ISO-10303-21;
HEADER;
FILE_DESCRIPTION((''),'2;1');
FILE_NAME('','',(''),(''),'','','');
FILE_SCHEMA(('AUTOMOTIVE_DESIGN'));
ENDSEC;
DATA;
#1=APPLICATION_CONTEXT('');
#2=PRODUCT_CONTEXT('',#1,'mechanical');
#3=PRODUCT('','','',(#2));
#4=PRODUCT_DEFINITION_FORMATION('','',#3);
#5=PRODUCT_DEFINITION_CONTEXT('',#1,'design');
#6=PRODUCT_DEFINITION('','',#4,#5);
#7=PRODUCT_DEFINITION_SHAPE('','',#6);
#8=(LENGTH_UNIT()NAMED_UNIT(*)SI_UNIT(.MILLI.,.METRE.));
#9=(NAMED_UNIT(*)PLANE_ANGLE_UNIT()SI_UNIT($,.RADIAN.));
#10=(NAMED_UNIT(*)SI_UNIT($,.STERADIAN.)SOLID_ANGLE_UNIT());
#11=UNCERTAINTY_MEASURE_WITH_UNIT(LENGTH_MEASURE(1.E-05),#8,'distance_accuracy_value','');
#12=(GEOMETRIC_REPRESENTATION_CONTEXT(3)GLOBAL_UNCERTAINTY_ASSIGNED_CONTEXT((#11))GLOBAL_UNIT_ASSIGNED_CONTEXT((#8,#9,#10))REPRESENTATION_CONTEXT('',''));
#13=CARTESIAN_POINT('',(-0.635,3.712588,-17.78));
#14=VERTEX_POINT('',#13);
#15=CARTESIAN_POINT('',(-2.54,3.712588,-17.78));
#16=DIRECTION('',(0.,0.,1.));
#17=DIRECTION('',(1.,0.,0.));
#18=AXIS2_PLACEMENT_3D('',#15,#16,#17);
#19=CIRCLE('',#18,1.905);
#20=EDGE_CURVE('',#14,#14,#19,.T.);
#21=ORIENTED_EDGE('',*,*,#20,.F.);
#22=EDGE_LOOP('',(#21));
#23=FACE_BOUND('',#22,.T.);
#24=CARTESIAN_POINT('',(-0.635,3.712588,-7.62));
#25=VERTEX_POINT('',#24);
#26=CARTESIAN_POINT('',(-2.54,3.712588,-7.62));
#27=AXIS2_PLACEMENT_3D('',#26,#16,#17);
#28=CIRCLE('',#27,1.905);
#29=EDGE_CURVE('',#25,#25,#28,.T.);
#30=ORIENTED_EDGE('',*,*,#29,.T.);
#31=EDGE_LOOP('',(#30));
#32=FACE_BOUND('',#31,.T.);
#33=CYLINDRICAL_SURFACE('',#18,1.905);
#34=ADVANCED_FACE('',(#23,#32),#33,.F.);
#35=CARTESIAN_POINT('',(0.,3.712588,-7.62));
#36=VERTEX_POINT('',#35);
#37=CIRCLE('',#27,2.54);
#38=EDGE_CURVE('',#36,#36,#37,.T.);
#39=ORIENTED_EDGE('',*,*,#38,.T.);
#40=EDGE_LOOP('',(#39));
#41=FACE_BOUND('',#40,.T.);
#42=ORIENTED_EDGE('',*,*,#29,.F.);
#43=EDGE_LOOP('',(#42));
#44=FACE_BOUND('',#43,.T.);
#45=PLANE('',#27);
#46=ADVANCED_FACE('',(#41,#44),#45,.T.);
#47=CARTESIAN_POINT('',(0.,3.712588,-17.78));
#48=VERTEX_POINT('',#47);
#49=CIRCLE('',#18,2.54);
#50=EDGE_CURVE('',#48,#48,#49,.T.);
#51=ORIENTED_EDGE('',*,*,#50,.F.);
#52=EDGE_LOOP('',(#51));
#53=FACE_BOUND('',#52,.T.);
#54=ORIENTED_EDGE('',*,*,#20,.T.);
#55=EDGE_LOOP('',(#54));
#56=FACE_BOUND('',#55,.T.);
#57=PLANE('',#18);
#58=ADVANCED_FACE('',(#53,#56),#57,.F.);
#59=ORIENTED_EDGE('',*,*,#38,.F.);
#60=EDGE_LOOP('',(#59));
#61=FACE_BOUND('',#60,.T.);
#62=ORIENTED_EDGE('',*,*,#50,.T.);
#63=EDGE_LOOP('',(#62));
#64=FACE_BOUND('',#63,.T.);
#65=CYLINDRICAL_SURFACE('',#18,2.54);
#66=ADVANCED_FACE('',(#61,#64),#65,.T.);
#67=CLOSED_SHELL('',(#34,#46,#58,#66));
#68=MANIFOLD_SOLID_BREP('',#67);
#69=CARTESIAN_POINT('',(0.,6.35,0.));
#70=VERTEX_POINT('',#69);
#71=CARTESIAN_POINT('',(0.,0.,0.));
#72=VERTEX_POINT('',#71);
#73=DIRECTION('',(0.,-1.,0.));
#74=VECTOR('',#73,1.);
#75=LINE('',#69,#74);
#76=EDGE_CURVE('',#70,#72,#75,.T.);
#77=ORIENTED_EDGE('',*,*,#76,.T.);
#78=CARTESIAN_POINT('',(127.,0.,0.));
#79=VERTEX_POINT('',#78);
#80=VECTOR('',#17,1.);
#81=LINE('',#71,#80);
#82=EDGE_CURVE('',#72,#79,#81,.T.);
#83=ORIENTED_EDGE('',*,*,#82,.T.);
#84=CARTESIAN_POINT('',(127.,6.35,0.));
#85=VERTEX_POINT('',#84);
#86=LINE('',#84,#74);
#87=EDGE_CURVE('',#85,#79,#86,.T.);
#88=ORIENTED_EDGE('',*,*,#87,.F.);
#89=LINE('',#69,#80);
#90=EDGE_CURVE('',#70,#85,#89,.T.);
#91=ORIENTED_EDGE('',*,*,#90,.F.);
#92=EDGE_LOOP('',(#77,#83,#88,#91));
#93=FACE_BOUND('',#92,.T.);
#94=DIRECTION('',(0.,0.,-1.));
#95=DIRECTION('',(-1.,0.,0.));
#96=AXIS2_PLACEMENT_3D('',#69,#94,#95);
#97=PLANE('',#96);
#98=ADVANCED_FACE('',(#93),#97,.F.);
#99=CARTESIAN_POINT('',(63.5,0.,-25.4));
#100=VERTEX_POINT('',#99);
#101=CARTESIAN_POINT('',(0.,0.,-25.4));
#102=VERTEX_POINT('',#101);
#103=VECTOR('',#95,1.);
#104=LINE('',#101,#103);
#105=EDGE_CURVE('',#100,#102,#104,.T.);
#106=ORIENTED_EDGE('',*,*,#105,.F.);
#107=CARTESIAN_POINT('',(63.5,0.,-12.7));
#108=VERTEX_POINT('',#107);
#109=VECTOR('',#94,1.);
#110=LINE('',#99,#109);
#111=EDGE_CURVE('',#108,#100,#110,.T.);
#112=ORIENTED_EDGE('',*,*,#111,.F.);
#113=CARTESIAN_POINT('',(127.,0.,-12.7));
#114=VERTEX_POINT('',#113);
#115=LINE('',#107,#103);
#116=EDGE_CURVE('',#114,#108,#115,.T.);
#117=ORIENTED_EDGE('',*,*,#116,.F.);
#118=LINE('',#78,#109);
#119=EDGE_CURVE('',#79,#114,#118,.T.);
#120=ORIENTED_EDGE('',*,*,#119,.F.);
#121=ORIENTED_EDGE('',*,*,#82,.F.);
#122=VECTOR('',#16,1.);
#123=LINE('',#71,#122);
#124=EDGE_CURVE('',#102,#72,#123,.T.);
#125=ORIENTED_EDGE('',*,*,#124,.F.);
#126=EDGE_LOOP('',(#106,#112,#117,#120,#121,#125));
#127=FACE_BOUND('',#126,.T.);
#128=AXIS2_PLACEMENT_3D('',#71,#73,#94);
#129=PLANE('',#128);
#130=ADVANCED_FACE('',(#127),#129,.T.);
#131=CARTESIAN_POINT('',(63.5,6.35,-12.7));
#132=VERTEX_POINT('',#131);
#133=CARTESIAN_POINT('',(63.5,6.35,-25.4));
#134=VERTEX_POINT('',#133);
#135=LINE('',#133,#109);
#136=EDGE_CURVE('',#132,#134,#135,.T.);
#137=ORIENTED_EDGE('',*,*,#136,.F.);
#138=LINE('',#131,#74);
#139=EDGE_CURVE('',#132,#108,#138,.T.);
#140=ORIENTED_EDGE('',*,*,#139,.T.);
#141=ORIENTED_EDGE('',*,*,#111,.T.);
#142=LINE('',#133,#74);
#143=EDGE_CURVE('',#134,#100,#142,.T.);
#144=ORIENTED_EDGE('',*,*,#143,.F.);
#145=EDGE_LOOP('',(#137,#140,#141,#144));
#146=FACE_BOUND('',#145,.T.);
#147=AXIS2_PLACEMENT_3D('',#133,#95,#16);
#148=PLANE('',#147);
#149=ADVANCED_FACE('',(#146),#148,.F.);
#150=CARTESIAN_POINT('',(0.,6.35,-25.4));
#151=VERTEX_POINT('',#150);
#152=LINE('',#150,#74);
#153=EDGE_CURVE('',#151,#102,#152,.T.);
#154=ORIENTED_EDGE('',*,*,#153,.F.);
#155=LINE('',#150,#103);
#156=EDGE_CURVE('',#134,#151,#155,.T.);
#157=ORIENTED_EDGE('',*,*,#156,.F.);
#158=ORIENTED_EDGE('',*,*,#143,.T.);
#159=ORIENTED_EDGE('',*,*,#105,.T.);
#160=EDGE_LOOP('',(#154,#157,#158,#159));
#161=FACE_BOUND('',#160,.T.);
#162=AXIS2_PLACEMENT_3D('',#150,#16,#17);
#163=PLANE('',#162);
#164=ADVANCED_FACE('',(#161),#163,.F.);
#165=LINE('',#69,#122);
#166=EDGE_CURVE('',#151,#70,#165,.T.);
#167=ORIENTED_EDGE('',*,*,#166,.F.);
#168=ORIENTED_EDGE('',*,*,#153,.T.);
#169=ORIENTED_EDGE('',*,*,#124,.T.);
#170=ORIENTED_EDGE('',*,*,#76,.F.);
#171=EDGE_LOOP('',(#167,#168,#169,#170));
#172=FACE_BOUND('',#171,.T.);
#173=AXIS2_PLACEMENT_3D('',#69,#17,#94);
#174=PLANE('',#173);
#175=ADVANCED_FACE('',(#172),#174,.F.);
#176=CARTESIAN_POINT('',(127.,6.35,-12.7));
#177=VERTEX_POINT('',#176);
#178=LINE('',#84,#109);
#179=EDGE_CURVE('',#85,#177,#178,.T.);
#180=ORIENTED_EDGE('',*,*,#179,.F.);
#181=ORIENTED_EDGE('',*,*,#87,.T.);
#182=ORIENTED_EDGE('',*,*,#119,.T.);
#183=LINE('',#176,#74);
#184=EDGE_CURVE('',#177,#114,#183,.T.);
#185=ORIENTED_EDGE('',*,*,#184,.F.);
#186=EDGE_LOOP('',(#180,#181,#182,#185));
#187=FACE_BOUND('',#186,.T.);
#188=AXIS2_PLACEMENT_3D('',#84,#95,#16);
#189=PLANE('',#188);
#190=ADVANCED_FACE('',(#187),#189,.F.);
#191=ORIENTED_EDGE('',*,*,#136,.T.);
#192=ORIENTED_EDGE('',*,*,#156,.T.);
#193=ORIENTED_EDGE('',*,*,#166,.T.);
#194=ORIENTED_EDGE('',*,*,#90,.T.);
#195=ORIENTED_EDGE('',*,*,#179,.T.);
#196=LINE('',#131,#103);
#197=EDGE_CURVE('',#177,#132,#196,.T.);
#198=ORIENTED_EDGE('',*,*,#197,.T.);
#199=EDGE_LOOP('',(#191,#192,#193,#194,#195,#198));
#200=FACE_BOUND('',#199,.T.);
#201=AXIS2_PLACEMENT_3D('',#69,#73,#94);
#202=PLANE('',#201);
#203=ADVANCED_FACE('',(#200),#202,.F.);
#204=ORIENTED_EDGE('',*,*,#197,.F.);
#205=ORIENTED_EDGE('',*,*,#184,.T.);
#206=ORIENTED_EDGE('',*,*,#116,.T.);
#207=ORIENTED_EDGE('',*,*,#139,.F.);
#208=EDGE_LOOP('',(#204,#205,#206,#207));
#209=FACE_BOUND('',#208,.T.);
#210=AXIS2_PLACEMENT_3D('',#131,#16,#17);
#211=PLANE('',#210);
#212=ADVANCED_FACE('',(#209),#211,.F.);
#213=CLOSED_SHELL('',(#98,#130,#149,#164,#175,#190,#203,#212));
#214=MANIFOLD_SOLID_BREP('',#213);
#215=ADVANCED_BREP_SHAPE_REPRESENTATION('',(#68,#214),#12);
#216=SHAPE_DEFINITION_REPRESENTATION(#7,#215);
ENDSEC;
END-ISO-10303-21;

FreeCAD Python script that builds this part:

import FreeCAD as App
import Part
import Sketcher
from FreeCAD import Vector
Q = App.Units.Quantity


def add_polygon(sketch, points):
    """Adds a closed chain of lines whose ends are joined by coincident constraints."""
    first, n = sketch.GeometryCount, len(points)
    for a, b in zip(points, points[1:] + points[:1]):
        sketch.addGeometry(Part.LineSegment(App.Vector(*a, 0), App.Vector(*b, 0)), False)
    for i in range(n):
        sketch.addConstraint(Sketcher.Constraint("Coincident", first + i, 2, first + (i + 1) % n, 1))

doc = App.newDocument("Part")
body = doc.addObject("PartDesign::Body", "Body")

sketch1 = doc.addObject("Sketcher::SketchObject", "Sketch")
body.addObject(sketch1)
sketch1.AttachmentSupport = (doc.XZ_Plane, [""])
sketch1.MapMode = "FlatFace"
add_polygon(sketch1, [(64, -13), (64, -25), (0, -25), (0, 0), (127, 0), (127, -13)])
sketch1.addConstraint([
    Sketcher.Constraint("Vertical", 0),
    Sketcher.Constraint("Horizontal", 1),
    Sketcher.Constraint("Vertical", 2),
    Sketcher.Constraint("Horizontal", 3),
    Sketcher.Constraint("Vertical", 4),
    Sketcher.Constraint("Horizontal", 5),
    Sketcher.Constraint("Coincident", 2, 2, -1, 1),
    Sketcher.Constraint("Equal", 1, 5),
    Sketcher.Constraint("Equal", 0, 4),
    Sketcher.Constraint("DistanceX", 3, 1, 3, 2, Q("5 in")),
    Sketcher.Constraint("DistanceY", 2, 1, 2, 2, Q("1 in")),
])
pad1 = doc.addObject("PartDesign::Pad", "Pad")
body.addObject(pad1)
pad1.Profile = sketch1
pad1.Length = Q("0.25 in")
pad1.Reversed = True
body2 = doc.addObject("PartDesign::Body", "Body001")

sketch2 = doc.addObject("Sketcher::SketchObject", "Sketch001")
body2.addObject(sketch2)
sketch2.AttachmentSupport = (doc.getObject("XY_Plane001"), [""])
sketch2.MapMode = "FlatFace"
sketch2.AttachmentOffset = App.Placement(Vector(0, 0, -0.5 * 25.4), App.Rotation())
sketch2.addGeometry([
    Part.Circle(Vector(-2.5, 3.7, 0), Vector(0, 0, 1), 2.5),
    Part.Circle(Vector(-2.5, 3.7, 0), Vector(0, 0, 1), 1.9),
], False)
sketch2.addConstraint([
    Sketcher.Constraint("Coincident", 1, 3, 0, 3),
    Sketcher.Constraint("Diameter", 0, Q("0.2 in")),
    Sketcher.Constraint("Diameter", 1, Q("0.15 in")),
    Sketcher.Constraint("DistanceX", 0, 3, -1, 1, Q("0.1 in")),
    Sketcher.Constraint("DistanceY", -1, 1, 0, 3, Q("3.712588 mm")),
])
pad2 = doc.addObject("PartDesign::Pad", "Pad001")
body2.addObject(pad2)
pad2.Profile = sketch2
pad2.Type = "TwoLengths"
pad2.Length = Q("0.2 in")
pad2.Length2 = Q("0.2 in")

doc.recompute()
